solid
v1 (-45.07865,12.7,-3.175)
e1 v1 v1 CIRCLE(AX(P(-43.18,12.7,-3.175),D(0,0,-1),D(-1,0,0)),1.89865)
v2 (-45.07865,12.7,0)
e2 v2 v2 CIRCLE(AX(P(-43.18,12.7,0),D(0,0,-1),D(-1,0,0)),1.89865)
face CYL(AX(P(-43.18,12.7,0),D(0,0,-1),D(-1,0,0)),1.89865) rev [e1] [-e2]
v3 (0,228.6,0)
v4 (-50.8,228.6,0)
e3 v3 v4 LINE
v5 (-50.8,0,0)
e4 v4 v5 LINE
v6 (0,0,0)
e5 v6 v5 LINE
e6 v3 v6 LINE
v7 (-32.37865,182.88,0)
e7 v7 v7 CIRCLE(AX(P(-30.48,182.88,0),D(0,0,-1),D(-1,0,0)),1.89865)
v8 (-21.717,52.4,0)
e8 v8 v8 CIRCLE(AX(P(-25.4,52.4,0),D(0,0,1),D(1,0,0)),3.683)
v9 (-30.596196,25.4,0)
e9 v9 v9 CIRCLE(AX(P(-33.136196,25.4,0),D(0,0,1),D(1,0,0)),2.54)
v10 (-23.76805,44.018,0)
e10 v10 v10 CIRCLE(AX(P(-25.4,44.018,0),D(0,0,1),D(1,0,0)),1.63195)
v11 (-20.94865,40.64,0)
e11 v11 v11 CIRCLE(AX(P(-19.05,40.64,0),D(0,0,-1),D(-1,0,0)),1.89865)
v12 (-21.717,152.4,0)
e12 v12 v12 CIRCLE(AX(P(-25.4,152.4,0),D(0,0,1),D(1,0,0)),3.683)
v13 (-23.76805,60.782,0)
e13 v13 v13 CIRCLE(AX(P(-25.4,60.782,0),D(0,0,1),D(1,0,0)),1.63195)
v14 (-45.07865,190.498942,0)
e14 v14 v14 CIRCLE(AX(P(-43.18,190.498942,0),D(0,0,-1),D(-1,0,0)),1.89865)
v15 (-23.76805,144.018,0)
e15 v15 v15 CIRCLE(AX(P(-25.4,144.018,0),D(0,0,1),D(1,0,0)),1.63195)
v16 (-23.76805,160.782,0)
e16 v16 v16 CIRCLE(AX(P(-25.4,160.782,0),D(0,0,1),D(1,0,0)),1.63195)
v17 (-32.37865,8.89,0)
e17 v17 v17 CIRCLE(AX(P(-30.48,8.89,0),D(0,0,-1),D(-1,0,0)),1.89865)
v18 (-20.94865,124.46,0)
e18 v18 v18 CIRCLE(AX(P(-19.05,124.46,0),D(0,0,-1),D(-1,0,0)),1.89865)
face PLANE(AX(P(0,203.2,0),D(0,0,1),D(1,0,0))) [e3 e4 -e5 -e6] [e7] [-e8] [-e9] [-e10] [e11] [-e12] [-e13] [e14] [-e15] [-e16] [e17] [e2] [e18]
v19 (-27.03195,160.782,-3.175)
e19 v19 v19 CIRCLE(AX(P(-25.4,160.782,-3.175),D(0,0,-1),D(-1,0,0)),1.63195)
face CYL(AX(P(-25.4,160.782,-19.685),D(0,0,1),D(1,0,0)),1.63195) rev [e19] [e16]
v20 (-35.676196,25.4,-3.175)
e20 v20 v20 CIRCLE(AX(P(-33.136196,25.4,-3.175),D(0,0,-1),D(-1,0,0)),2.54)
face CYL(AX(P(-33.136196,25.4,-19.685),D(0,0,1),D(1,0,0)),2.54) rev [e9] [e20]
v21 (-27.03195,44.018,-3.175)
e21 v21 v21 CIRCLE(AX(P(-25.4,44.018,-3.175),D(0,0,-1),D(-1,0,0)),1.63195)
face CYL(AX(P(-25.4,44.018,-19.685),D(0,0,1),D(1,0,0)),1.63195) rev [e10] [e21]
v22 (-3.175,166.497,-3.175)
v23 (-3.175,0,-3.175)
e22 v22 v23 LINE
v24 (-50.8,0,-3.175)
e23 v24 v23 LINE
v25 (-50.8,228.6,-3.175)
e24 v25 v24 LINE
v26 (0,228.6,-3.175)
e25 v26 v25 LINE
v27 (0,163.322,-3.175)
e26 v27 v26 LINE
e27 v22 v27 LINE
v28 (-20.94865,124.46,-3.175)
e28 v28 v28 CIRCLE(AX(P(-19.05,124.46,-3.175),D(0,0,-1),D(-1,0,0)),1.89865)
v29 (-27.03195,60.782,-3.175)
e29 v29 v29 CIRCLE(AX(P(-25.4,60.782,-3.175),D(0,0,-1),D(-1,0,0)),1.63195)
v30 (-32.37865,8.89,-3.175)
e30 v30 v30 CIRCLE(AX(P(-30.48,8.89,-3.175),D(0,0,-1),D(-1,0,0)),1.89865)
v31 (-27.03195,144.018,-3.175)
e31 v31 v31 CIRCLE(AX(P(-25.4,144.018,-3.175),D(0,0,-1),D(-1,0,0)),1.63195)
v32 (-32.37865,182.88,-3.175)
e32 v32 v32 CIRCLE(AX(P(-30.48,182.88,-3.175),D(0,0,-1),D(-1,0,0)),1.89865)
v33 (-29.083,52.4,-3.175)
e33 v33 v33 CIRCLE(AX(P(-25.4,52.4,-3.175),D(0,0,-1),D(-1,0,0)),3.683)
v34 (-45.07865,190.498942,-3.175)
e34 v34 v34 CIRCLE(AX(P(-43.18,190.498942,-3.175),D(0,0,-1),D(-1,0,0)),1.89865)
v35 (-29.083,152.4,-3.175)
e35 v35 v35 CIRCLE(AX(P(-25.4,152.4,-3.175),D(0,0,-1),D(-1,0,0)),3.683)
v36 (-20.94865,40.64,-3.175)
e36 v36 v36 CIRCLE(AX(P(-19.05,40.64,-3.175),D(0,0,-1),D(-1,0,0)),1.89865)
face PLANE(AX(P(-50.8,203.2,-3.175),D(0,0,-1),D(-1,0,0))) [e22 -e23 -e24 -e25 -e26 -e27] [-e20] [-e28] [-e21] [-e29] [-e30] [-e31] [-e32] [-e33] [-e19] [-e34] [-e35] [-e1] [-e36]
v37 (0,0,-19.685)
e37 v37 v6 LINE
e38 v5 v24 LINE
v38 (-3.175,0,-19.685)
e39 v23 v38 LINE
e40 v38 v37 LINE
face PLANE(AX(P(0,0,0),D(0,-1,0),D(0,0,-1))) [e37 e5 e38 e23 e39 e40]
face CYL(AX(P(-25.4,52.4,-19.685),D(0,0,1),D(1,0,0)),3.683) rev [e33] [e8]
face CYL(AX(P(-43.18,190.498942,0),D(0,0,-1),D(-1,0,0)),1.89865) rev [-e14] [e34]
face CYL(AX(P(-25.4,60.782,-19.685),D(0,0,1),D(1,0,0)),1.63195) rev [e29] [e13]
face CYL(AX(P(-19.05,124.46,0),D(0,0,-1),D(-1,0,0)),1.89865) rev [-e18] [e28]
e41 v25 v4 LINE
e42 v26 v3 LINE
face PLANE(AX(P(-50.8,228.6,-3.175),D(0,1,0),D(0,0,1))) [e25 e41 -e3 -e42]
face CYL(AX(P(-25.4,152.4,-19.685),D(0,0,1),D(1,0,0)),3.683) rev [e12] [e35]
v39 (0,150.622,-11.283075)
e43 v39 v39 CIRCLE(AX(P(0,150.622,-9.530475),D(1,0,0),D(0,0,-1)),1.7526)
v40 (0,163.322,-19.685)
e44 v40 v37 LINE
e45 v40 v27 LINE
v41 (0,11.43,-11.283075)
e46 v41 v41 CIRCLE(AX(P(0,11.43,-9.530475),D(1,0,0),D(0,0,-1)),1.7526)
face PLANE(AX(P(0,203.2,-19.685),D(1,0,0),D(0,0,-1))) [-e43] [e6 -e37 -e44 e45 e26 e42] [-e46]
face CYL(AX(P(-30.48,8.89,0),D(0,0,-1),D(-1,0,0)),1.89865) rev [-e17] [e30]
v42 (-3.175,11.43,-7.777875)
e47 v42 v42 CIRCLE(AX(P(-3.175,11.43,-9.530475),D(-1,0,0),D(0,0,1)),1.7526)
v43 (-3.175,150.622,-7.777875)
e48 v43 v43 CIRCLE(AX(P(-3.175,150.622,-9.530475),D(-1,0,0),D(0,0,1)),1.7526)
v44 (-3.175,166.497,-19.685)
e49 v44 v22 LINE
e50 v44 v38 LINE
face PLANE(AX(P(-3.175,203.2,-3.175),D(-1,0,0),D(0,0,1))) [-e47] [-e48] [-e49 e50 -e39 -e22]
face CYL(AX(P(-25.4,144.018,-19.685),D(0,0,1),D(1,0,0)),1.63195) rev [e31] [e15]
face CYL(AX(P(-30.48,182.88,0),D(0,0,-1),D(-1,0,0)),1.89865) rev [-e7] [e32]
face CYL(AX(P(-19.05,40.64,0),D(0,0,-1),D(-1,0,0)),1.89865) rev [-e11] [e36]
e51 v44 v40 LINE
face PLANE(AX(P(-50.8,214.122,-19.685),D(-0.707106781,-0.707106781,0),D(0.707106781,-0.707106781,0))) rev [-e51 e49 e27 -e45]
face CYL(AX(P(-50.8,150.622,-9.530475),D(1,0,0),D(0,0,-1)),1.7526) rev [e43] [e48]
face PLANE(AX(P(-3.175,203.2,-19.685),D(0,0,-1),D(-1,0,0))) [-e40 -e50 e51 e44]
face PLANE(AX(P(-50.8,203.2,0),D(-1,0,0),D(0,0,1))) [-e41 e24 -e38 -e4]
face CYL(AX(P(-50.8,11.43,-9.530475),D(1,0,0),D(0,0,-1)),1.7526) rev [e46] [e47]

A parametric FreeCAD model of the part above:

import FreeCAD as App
import Part
import Sketcher
Q = App.Units.Quantity

doc = App.newDocument("Part")
body = doc.addObject("PartDesign::Body", "Body")

sketch1 = body.newObject("Sketcher::SketchObject", "Sketch")
sketch1.AttachmentSupport = (doc.getObject("XZ_Plane"), [""])
sketch1.MapMode = "FlatFace"
sketch1.addGeometry(Part.LineSegment(App.Vector(-50.8, 0, 0), App.Vector(0, 0, 0)), False)
sketch1.addGeometry(Part.LineSegment(App.Vector(0, 0, 0), App.Vector(0, -19.685, 0)), False)
sketch1.addGeometry(Part.LineSegment(App.Vector(0, -19.685, 0), App.Vector(-3.175, -19.685, 0)), False)
sketch1.addGeometry(Part.LineSegment(App.Vector(-3.175, -19.685, 0), App.Vector(-3.175, -3.175, 0)), False)
sketch1.addGeometry(Part.LineSegment(App.Vector(-3.175, -3.175, 0), App.Vector(-50.8, -3.175, 0)), False)
sketch1.addGeometry(Part.LineSegment(App.Vector(-50.8, -3.175, 0), App.Vector(-50.8, 0, 0)), False)
sketch1.addConstraint(Sketcher.Constraint("Coincident", 0, 2, 1, 1))
sketch1.addConstraint(Sketcher.Constraint("Coincident", 1, 2, 2, 1))
sketch1.addConstraint(Sketcher.Constraint("Coincident", 2, 2, 3, 1))
sketch1.addConstraint(Sketcher.Constraint("Coincident", 3, 2, 4, 1))
sketch1.addConstraint(Sketcher.Constraint("Coincident", 4, 2, 5, 1))
sketch1.addConstraint(Sketcher.Constraint("Coincident", 5, 2, 0, 1))
sketch1.addConstraint(Sketcher.Constraint("Horizontal", 0))
sketch1.addConstraint(Sketcher.Constraint("Vertical", 1))
sketch1.addConstraint(Sketcher.Constraint("Horizontal", 2))
sketch1.addConstraint(Sketcher.Constraint("Vertical", 3))
sketch1.addConstraint(Sketcher.Constraint("Horizontal", 4))
sketch1.addConstraint(Sketcher.Constraint("Vertical", 5))
sketch1.addConstraint(Sketcher.Constraint("Coincident", 0, 2, -1, 1))
sketch1.addConstraint(Sketcher.Constraint("Equal", 2, 5))
sketch1.addConstraint(Sketcher.Constraint("DistanceX", 0, 1, 0, 2, Q("2 in")))
sketch1.addConstraint(Sketcher.Constraint("DistanceY", 3, 1, 3, 2, Q("0.65 in")))
sketch1.addConstraint(Sketcher.Constraint("DistanceX", 2, 2, 2, 1, Q("0.125 in")))
pad1 = body.newObject("PartDesign::Pad", "Pad")
pad1.Profile = sketch1
pad1.Length = Q("8 in")
pad1.Reversed = True

sketch2 = body.newObject("Sketcher::SketchObject", "Sketch001")
sketch2.AttachmentSupport = (doc.getObject("XY_Plane"), [""])
sketch2.MapMode = "FlatFace"
sketch2.addGeometry(Part.LineSegment(App.Vector(-57.250524, 214.122, 0), App.Vector(-50.8, 214.122, 0)), False)
sketch2.addGeometry(Part.LineSegment(App.Vector(-50.8, 214.122, 0), App.Vector(0, 163.322, 0)), False)
sketch2.addGeometry(Part.LineSegment(App.Vector(0, 163.322, 0), App.Vector(14.491606, 163.322, 0)), False)
sketch2.addGeometry(Part.LineSegment(App.Vector(14.491606, 163.322, 0), App.Vector(14.491606, 247.071987, 0)), False)
sketch2.addGeometry(Part.LineSegment(App.Vector(14.491606, 247.071987, 0), App.Vector(-57.250524, 247.071987, 0)), False)
sketch2.addGeometry(Part.LineSegment(App.Vector(-57.250524, 247.071987, 0), App.Vector(-57.250524, 214.122, 0)), False)
sketch2.addConstraint(Sketcher.Constraint("Coincident", 0, 2, 1, 1))
sketch2.addConstraint(Sketcher.Constraint("Coincident", 1, 2, 2, 1))
sketch2.addConstraint(Sketcher.Constraint("Coincident", 2, 2, 3, 1))
sketch2.addConstraint(Sketcher.Constraint("Coincident", 3, 2, 4, 1))
sketch2.addConstraint(Sketcher.Constraint("Coincident", 4, 2, 5, 1))
sketch2.addConstraint(Sketcher.Constraint("Coincident", 5, 2, 0, 1))
sketch2.addConstraint(Sketcher.Constraint("Horizontal", 0))
sketch2.addConstraint(Sketcher.Constraint("Horizontal", 2))
sketch2.addConstraint(Sketcher.Constraint("Vertical", 3))
sketch2.addConstraint(Sketcher.Constraint("Horizontal", 4))
sketch2.addConstraint(Sketcher.Constraint("Vertical", 5))
sketch2.addConstraint(Sketcher.Constraint("PointOnObject", 1, 2, -2))
sketch2.addConstraint(Sketcher.Constraint("DistanceX", 0, 2, -1, 1, Q("2 in")))
sketch2.addConstraint(Sketcher.Constraint("Angle", 1, Q("-45 deg")))
sketch2.addConstraint(Sketcher.Constraint("DistanceY", -1, 1, 0, 2, Q("8.43 in")))
sketch2.addConstraint(Sketcher.Constraint("DistanceX", 4, 2, 4, 1, Q("71.74213 mm")))
sketch2.addConstraint(Sketcher.Constraint("DistanceX", 0, 1, 0, 2, Q("6.450524 mm")))
sketch2.addConstraint(Sketcher.Constraint("DistanceY", 3, 1, 3, 2, Q("83.749987 mm")))
pocket1 = body.newObject("PartDesign::Pocket", "Pocket")
pocket1.Profile = sketch2
pocket1.Type = "ThroughAll"

sketch3 = body.newObject("Sketcher::SketchObject", "Sketch002")
sketch3.AttachmentSupport = (doc.getObject("XY_Plane"), [""])
sketch3.MapMode = "FlatFace"
sketch3.addGeometry(Part.Circle(App.Vector(-25.4, 152.4, 0), App.Vector(0, 0, 1), 3.683), False)
sketch3.addGeometry(Part.Circle(App.Vector(-25.4, 160.782, 0), App.Vector(0, 0, 1), 1.63195), False)
sketch3.addGeometry(Part.Circle(App.Vector(-25.4, 144.018, 0), App.Vector(0, 0, 1), 1.63195), False)
sketch3.addConstraint(Sketcher.Constraint("Equal", 1, 2))
sketch3.addConstraint(Sketcher.Constraint("Vertical", 0, 3, 1, 3))
sketch3.addConstraint(Sketcher.Constraint("Vertical", 1, 3, 2, 3))
sketch3.addConstraint(Sketcher.Constraint("Diameter", 0, Q("0.29 in")))
sketch3.addConstraint(Sketcher.Constraint("DistanceX", 0, 3, -1, 1, Q("1 in")))
sketch3.addConstraint(Sketcher.Constraint("DistanceY", -1, 1, 0, 3, Q("6 in")))
sketch3.addConstraint(Sketcher.Constraint("Diameter", 1, Q("0.1285 in")))
sketch3.addConstraint(Sketcher.Constraint("DistanceY", -1, 1, 1, 3, Q("6.33 in")))
sketch3.addConstraint(Sketcher.Constraint("DistanceY", -1, 1, 2, 3, Q("5.67 in")))
pocket2 = body.newObject("PartDesign::Pocket", "Pocket001")
pocket2.Profile = sketch3
pocket2.Type = "ThroughAll"

sketch4 = body.newObject("Sketcher::SketchObject", "Sketch003")
sketch4.AttachmentSupport = (doc.getObject("YZ_Plane"), [""])
sketch4.MapMode = "FlatFace"
sketch4.addGeometry(Part.Circle(App.Vector(11.43, -9.530475, 0), App.Vector(0, 0, 1), 1.7526), False)
sketch4.addGeometry(Part.Circle(App.Vector(150.622, -9.530475, 0), App.Vector(0, 0, 1), 1.7526), False)
sketch4.addConstraint(Sketcher.Constraint("Equal", 0, 1))
sketch4.addConstraint(Sketcher.Constraint("Horizontal", 0, 3, 1, 3))
sketch4.addConstraint(Sketcher.Constraint("Diameter", 0, Q("0.138 in")))
sketch4.addConstraint(Sketcher.Constraint("DistanceX", -1, 1, 0, 3, Q("0.45 in")))
sketch4.addConstraint(Sketcher.Constraint("DistanceX", -1, 1, 1, 3, Q("5.93 in")))
sketch4.addConstraint(Sketcher.Constraint("DistanceY", 0, 3, -1, 1, Q("9.530475 mm")))
pocket3 = body.newObject("PartDesign::Pocket", "Pocket002")
pocket3.Profile = sketch4
pocket3.Type = "ThroughAll"

sketch5 = body.newObject("Sketcher::SketchObject", "Sketch004")
sketch5.AttachmentSupport = (doc.getObject("XY_Plane"), [""])
sketch5.MapMode = "FlatFace"
sketch5.AttachmentOffset = App.Placement(App.Vector(0, 0, -0.125 * 25.4), App.Rotation())
sketch5.addGeometry(Part.Circle(App.Vector(-30.48, 8.89, 0), App.Vector(0, 0, 1), 1.89865), False)
sketch5.addGeometry(Part.Circle(App.Vector(-30.48, 182.88, 0), App.Vector(0, 0, 1), 1.89865), False)
sketch5.addConstraint(Sketcher.Constraint("Equal", 0, 1))
sketch5.addConstraint(Sketcher.Constraint("Vertical", 0, 3, 1, 3))
sketch5.addConstraint(Sketcher.Constraint("Diameter", 0, Q("0.1495 in")))
sketch5.addConstraint(Sketcher.Constraint("DistanceX", 0, 3, -1, 1, Q("1.2 in")))
sketch5.addConstraint(Sketcher.Constraint("DistanceY", -1, 1, 1, 3, Q("7.2 in")))
sketch5.addConstraint(Sketcher.Constraint("DistanceY", -1, 1, 0, 3, Q("0.35 in")))
pocket4 = body.newObject("PartDesign::Pocket", "Pocket003")
pocket4.Profile = sketch5
pocket4.Type = "ThroughAll"
pocket4.Reversed = True

sketch6 = body.newObject("Sketcher::SketchObject", "Sketch005")
sketch6.AttachmentSupport = (doc.getObject("XY_Plane"), [""])
sketch6.MapMode = "FlatFace"
sketch6.AttachmentOffset = App.Placement(App.Vector(0, 0, -0.125 * 25.4), App.Rotation())
sketch6.addGeometry(Part.Circle(App.Vector(-19.05, 40.64, 0), App.Vector(0, 0, 1), 1.89865), False)
sketch6.addGeometry(Part.Circle(App.Vector(-19.05, 124.46, 0), App.Vector(0, 0, 1), 1.89865), False)
sketch6.addConstraint(Sketcher.Constraint("Equal", 0, 1))
sketch6.addConstraint(Sketcher.Constraint("Vertical", 0, 3, 1, 3))
sketch6.addConstraint(Sketcher.Constraint("Diameter", 0, Q("0.1495 in")))
sketch6.addConstraint(Sketcher.Constraint("DistanceY", -1, 1, 0, 3, Q("1.6 in")))
sketch6.addConstraint(Sketcher.Constraint("DistanceY", -1, 1, 1, 3, Q("4.9 in")))
sketch6.addConstraint(Sketcher.Constraint("DistanceX", 0, 3, -1, 1, Q("0.75 in")))
pocket5 = body.newObject("PartDesign::Pocket", "Pocket004")
pocket5.Profile = sketch6
pocket5.Type = "ThroughAll"
pocket5.Reversed = True

sketch7 = body.newObject("Sketcher::SketchObject", "Sketch006")
sketch7.AttachmentSupport = (doc.getObject("XY_Plane"), [""])
sketch7.MapMode = "FlatFace"
sketch7.addGeometry(Part.LineSegment(App.Vector(0, 163.322, 0), App.Vector(0, 228.6, 0)), False)
sketch7.addGeometry(Part.LineSegment(App.Vector(0, 228.6, 0), App.Vector(-50.8, 228.6, 0)), False)
sketch7.addGeometry(Part.LineSegment(App.Vector(-50.8, 228.6, 0), App.Vector(-50.8, 203.2, 0)), False)
sketch7.addGeometry(Part.LineSegment(App.Vector(-50.8, 203.2, 0), App.Vector(-39.878, 203.2, 0)), False)
sketch7.addGeometry(Part.LineSegment(App.Vector(-39.878, 203.2, 0), App.Vector(0, 163.322, 0)), False)
sketch7.addConstraint(Sketcher.Constraint("Coincident", 0, 2, 1, 1))
sketch7.addConstraint(Sketcher.Constraint("Coincident", 1, 2, 2, 1))
sketch7.addConstraint(Sketcher.Constraint("Coincident", 2, 2, 3, 1))
sketch7.addConstraint(Sketcher.Constraint("Coincident", 3, 2, 4, 1))
sketch7.addConstraint(Sketcher.Constraint("Coincident", 4, 2, 0, 1))
sketch7.addConstraint(Sketcher.Constraint("Vertical", 0))
sketch7.addConstraint(Sketcher.Constraint("Horizontal", 1))
sketch7.addConstraint(Sketcher.Constraint("Vertical", 2))
sketch7.addConstraint(Sketcher.Constraint("Horizontal", 3))
sketch7.addConstraint(Sketcher.Constraint("PointOnObject", 0, 2, -2))
sketch7.addConstraint(Sketcher.Constraint("DistanceX", 1, 2, 1, 1, Q("2 in")))
sketch7.addConstraint(Sketcher.Constraint("DistanceY", 2, 2, 2, 1, Q("1 in")))
sketch7.addConstraint(Sketcher.Constraint("DistanceY", -1, 1, 0, 2, Q("9 in")))
sketch7.addConstraint(Sketcher.Constraint("Angle", 4, Q("-45 deg")))
sketch7.addConstraint(Sketcher.Constraint("DistanceX", 3, 1, 3, 2, Q("0.43 in")))
pad2 = body.newObject("PartDesign::Pad", "Pad001")
pad2.Profile = sketch7
pad2.Length = Q("0.125 in")
pad2.Reversed = True

sketch8 = body.newObject("Sketcher::SketchObject", "Sketch007")
sketch8.AttachmentSupport = (doc.getObject("XY_Plane"), [""])
sketch8.MapMode = "FlatFace"
sketch8.addGeometry(Part.Circle(App.Vector(-33.136196, 25.4, 0), App.Vector(0, 0, 1), 2.54), False)
sketch8.addConstraint(Sketcher.Constraint("Diameter", 0, Q("0.2 in")))
sketch8.addConstraint(Sketcher.Constraint("DistanceY", -1, 1, 0, 3, Q("1 in")))
sketch8.addConstraint(Sketcher.Constraint("DistanceX", 0, 3, -1, 1, Q("33.136196 mm")))
pocket6 = body.newObject("PartDesign::Pocket", "Pocket005")
pocket6.Profile = sketch8
pocket6.Type = "ThroughAll"

sketch9 = body.newObject("Sketcher::SketchObject", "Sketch008")
sketch9.AttachmentSupport = (doc.getObject("XY_Plane"), [""])
sketch9.MapMode = "FlatFace"
sketch9.AttachmentOffset = App.Placement(App.Vector(0, 0, -0.125 * 25.4), App.Rotation())
sketch9.addGeometry(Part.Circle(App.Vector(-43.18, 12.7, 0), App.Vector(0, 0, 1), 1.89865), False)
sketch9.addGeometry(Part.Circle(App.Vector(-43.18, 190.498942, 0), App.Vector(0, 0, 1), 1.89865), False)
sketch9.addConstraint(Sketcher.Constraint("Equal", 0, 1))
sketch9.addConstraint(Sketcher.Constraint("Vertical", 0, 3, 1, 3))
sketch9.addConstraint(Sketcher.Constraint("Diameter", 0, Q("0.1495 in")))
sketch9.addConstraint(Sketcher.Constraint("DistanceX", 0, 3, -1, 1, Q("1.7 in")))
sketch9.addConstraint(Sketcher.Constraint("DistanceY", -1, 1, 0, 3, Q("0.5 in")))
sketch9.addConstraint(Sketcher.Constraint("DistanceY", -1, 1, 1, 3, Q("190.498942 mm")))
pocket7 = body.newObject("PartDesign::Pocket", "Pocket006")
pocket7.Profile = sketch9
pocket7.Type = "ThroughAll"
pocket7.Reversed = True

sketch10 = body.newObject("Sketcher::SketchObject", "Sketch009")
sketch10.AttachmentSupport = (doc.getObject("XY_Plane"), [""])
sketch10.MapMode = "FlatFace"
sketch10.addGeometry(Part.Circle(App.Vector(-25.4, 52.4, 0), App.Vector(0, 0, 1), 3.683), False)
sketch10.addGeometry(Part.Circle(App.Vector(-25.4, 60.782, 0), App.Vector(0, 0, 1), 1.63195), False)
sketch10.addGeometry(Part.Circle(App.Vector(-25.4, 44.018, 0), App.Vector(0, 0, 1), 1.63195), False)
sketch10.addConstraint(Sketcher.Constraint("Equal", 1, 2))
sketch10.addConstraint(Sketcher.Constraint("Vertical", 0, 3, 1, 3))
sketch10.addConstraint(Sketcher.Constraint("Vertical", 1, 3, 2, 3))
sketch10.addConstraint(Sketcher.Constraint("Diameter", 0, Q("0.29 in")))
sketch10.addConstraint(Sketcher.Constraint("DistanceX", 0, 3, -1, 1, Q("1 in")))
sketch10.addConstraint(Sketcher.Constraint("Diameter", 1, Q("0.1285 in")))
sketch10.addConstraint(Sketcher.Constraint("DistanceY", 0, 3, 1, 3, Q("0.33 in")))
sketch10.addConstraint(Sketcher.Constraint("DistanceY", 2, 3, 0, 3, Q("0.33 in")))
sketch10.addConstraint(Sketcher.Constraint("DistanceY", -1, 1, 0, 3, Q("52.4 mm")))
pocket8 = body.newObject("PartDesign::Pocket", "Pocket007")
pocket8.Profile = sketch10
pocket8.Type = "ThroughAll"
pocket8.Midplane = True

doc.recompute()
